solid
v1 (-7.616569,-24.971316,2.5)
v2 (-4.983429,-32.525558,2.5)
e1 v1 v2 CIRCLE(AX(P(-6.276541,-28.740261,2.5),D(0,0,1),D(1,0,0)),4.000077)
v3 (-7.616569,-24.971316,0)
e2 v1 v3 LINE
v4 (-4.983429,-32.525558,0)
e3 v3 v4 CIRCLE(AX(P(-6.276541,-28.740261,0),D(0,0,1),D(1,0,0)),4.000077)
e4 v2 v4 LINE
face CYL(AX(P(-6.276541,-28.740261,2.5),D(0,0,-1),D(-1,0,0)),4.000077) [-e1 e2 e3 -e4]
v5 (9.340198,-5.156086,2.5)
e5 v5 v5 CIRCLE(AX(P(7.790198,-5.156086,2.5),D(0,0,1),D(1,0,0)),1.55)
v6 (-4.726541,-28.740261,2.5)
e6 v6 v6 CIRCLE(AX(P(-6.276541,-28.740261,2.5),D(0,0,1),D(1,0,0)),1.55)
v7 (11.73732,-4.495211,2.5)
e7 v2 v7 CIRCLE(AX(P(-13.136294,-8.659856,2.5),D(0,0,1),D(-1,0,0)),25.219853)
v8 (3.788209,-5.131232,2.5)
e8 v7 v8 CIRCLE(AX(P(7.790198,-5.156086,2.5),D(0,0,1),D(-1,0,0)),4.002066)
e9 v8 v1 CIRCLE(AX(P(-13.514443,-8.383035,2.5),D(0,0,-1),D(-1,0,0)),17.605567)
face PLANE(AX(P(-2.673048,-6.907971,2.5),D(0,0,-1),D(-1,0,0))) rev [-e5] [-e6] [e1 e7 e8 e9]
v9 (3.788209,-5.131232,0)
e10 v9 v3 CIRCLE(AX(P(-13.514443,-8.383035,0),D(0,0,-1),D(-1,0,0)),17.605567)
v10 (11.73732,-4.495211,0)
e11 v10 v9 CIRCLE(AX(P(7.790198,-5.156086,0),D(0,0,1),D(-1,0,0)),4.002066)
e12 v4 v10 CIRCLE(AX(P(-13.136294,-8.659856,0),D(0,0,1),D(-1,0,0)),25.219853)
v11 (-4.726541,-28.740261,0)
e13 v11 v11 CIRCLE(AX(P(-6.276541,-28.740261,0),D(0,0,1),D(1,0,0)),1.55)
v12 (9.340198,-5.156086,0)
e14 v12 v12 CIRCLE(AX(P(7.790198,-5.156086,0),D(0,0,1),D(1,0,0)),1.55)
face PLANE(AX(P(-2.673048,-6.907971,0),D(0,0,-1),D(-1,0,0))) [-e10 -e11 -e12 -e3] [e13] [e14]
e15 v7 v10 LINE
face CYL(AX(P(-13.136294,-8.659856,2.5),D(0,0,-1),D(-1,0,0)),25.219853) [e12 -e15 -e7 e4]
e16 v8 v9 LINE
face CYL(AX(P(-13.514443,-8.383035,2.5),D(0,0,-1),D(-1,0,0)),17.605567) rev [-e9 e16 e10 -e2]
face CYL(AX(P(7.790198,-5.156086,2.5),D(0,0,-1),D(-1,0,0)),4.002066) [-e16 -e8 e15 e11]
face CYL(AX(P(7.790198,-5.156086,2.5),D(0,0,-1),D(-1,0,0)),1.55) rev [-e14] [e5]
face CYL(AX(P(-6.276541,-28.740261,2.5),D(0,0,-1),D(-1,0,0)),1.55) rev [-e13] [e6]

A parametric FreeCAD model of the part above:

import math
import FreeCAD as App
import Part
import Sketcher

doc = App.newDocument("Part")
body = doc.addObject("PartDesign::Body", "Body")

# Sketch on XY plane
sketch1 = body.newObject("Sketcher::SketchObject", "Sketch")
sketch1.AttachmentSupport = (doc.getObject("XY_Plane"), [""])
sketch1.MapMode = "FlatFace"
sketch1.addGeometry([
    Part.ArcOfCircle(Part.Circle(App.Vector(-13.5, -8.4, 0), App.Vector(0, 0, 1), 17.6), math.radians(-70), math.radians(11)),  # 0
    Part.ArcOfCircle(Part.Circle(App.Vector(-6.3, -28.7, 0), App.Vector(0, 0, 1), 4), math.radians(110), math.radians(289)),  # 1
    Part.ArcOfCircle(Part.Circle(App.Vector(-13.1, -8.7, 0), App.Vector(0, 0, 1), 25.2), math.radians(-71), math.radians(10)),  # 2
    Part.ArcOfCircle(Part.Circle(App.Vector(7.8, -5.2, 0), App.Vector(0, 0, 1), 4), math.radians(10), math.radians(180)),  # 3
    Part.Circle(App.Vector(-6.3, -28.7, 0), App.Vector(0, 0, 1), 1.6),  # 4
    Part.Circle(App.Vector(7.8, -5.2, 0), App.Vector(0, 0, 1), 1.6),  # 5
], False)
sketch1.addConstraint([
    Sketcher.Constraint("Tangent", 0, 1, 1, 1),
    Sketcher.Constraint("Tangent", 1, 2, 2, 1),
    Sketcher.Constraint("Tangent", 2, 2, 3, 1),
    Sketcher.Constraint("Coincident", 3, 2, 0, 2),
    Sketcher.Constraint("Coincident", 4, 3, 1, 3),
    Sketcher.Constraint("Coincident", 5, 3, 3, 3),
    Sketcher.Constraint("Equal", 4, 5),
    Sketcher.Constraint("Diameter", 4, 3.1),
    Sketcher.Constraint("Radius", 0, 17.605567),
    Sketcher.Constraint("Radius", 1, 4.000077),
    Sketcher.Constraint("Radius", 2, 25.219853),
    Sketcher.Constraint("Radius", 3, 4.002066),
    Sketcher.Constraint("DistanceX", 0, 3, 1, 3, 7.237902),
    Sketcher.Constraint("DistanceX", 1, 3, -1, 1, 6.276541),
    Sketcher.Constraint("DistanceY", 1, 3, -1, 1, 28.740261),
    Sketcher.Constraint("DistanceX", 1, 2, -1, 1, 4.983429),
    Sketcher.Constraint("DistanceX", -1, 1, 2, 2, 11.73732),
])
pad1 = body.newObject("PartDesign::Pad", "Pad")
pad1.Profile = sketch1
pad1.Length = 2.5

doc.recompute()
